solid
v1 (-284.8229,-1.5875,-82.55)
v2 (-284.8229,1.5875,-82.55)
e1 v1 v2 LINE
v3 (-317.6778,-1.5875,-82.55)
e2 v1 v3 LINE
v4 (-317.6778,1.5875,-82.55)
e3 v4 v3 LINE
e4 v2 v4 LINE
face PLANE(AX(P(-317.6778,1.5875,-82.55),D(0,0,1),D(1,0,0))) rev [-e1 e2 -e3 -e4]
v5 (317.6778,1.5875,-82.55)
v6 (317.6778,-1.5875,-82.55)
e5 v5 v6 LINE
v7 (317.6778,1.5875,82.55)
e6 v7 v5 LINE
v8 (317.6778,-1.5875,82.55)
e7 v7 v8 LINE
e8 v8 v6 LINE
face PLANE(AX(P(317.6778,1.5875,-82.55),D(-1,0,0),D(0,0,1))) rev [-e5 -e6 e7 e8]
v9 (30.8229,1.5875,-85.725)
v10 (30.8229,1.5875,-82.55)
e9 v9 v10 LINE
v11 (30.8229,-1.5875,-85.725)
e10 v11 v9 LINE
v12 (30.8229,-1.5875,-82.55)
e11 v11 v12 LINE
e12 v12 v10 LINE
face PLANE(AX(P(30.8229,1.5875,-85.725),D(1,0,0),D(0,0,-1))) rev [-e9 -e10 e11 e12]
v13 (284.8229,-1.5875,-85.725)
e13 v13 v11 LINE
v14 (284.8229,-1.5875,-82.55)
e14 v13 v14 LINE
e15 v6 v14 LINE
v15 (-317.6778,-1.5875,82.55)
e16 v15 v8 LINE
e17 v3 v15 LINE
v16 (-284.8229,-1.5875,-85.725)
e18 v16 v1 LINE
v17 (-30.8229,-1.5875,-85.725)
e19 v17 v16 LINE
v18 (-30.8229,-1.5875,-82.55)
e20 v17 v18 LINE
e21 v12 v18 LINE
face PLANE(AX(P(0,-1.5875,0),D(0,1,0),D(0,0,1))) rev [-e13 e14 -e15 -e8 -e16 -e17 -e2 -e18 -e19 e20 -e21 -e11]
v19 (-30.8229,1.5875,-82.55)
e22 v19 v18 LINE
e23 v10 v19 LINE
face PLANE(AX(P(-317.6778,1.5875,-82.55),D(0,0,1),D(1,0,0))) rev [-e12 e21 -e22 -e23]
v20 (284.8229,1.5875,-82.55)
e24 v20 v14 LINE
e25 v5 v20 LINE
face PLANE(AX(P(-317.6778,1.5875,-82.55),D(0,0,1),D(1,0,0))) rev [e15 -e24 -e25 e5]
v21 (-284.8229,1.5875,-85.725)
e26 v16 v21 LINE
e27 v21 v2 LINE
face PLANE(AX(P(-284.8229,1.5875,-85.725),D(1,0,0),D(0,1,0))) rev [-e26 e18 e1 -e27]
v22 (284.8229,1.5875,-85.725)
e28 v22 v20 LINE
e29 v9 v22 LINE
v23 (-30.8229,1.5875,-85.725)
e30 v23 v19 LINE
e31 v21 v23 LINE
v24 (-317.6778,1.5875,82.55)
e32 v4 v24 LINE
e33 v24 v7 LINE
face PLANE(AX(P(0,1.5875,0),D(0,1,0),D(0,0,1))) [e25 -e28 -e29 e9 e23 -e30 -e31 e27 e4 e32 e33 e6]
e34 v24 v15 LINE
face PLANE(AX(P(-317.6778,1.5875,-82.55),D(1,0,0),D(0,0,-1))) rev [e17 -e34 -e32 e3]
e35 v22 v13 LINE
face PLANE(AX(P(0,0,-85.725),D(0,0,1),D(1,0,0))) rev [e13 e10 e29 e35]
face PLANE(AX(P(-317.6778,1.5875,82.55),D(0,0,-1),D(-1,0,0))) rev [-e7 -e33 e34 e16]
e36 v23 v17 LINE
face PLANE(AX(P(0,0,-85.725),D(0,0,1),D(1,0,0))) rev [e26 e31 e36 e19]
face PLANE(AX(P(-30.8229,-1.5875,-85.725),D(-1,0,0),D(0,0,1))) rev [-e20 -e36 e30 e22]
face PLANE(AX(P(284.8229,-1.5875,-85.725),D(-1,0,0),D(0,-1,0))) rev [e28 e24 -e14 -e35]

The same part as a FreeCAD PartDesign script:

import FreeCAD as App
import Part
import Sketcher
from FreeCAD import Vector
Q = App.Units.Quantity

doc = App.newDocument("Part")
body = doc.addObject("PartDesign::Body", "Body")

sketch1 = body.newObject("Sketcher::SketchObject", "Sketch")
sketch1.AttachmentSupport = (doc.getObject("XZ_Plane"), [""])
sketch1.MapMode = "FlatFace"
sketch1.addGeometry(Part.LineSegment(Vector(-318, -83, 0), Vector(-318, 83, 0)), False)
sketch1.addGeometry(Part.LineSegment(Vector(-318, 83, 0), Vector(318, 83, 0)), False)
sketch1.addGeometry(Part.LineSegment(Vector(318, 83, 0), Vector(318, -83, 0)), False)
sketch1.addGeometry(Part.LineSegment(Vector(318, -83, 0), Vector(-318, -83, 0)), False)
sketch1.addConstraint(Sketcher.Constraint("Coincident", 0, 2, 1, 1))
sketch1.addConstraint(Sketcher.Constraint("Coincident", 1, 2, 2, 1))
sketch1.addConstraint(Sketcher.Constraint("Coincident", 2, 2, 3, 1))
sketch1.addConstraint(Sketcher.Constraint("Coincident", 3, 2, 0, 1))
sketch1.addConstraint(Sketcher.Constraint("Vertical", 0))
sketch1.addConstraint(Sketcher.Constraint("Horizontal", 1))
sketch1.addConstraint(Sketcher.Constraint("Vertical", 2))
sketch1.addConstraint(Sketcher.Constraint("Horizontal", 3))
sketch1.addConstraint(Sketcher.Constraint("Symmetric", 0, 2, 2, 2, -1, 1))
sketch1.addConstraint(Sketcher.Constraint("DistanceY", 0, 1, 0, 2, Q("6.5 in")))
sketch1.addConstraint(Sketcher.Constraint("DistanceX", 1, 1, 1, 2, Q("25.014 in")))
pad1 = body.newObject("PartDesign::Pad", "Pad")
pad1.Profile = sketch1
pad1.Length = Q("0.125 in")
pad1.Midplane = True

sketch2 = body.newObject("Sketcher::SketchObject", "Sketch001")
sketch2.AttachmentSupport = (doc.getObject("XY_Plane"), [""])
sketch2.MapMode = "FlatFace"
sketch2.AttachmentOffset = App.Placement(Vector(0, 0, -3.25 * 25.4), App.Rotation())
sketch2.addGeometry(Part.LineSegment(Vector(284.8, 1.6, 0), Vector(284.8, -1.6, 0)), False)
sketch2.addGeometry(Part.LineSegment(Vector(284.8, -1.6, 0), Vector(30.8, -1.6, 0)), False)
sketch2.addGeometry(Part.LineSegment(Vector(30.8, -1.6, 0), Vector(30.8, 1.6, 0)), False)
sketch2.addGeometry(Part.LineSegment(Vector(30.8, 1.6, 0), Vector(284.8, 1.6, 0)), False)
sketch2.addGeometry(Part.LineSegment(Vector(-30.8, 1.6, 0), Vector(-30.8, -1.6, 0)), False)
sketch2.addGeometry(Part.LineSegment(Vector(-30.8, -1.6, 0), Vector(-284.8, -1.6, 0)), False)
sketch2.addGeometry(Part.LineSegment(Vector(-284.8, -1.6, 0), Vector(-284.8, 1.6, 0)), False)
sketch2.addGeometry(Part.LineSegment(Vector(-284.8, 1.6, 0), Vector(-30.8, 1.6, 0)), False)
sketch2.addConstraint(Sketcher.Constraint("Coincident", 0, 2, 1, 1))
sketch2.addConstraint(Sketcher.Constraint("Coincident", 1, 2, 2, 1))
sketch2.addConstraint(Sketcher.Constraint("Coincident", 2, 2, 3, 1))
sketch2.addConstraint(Sketcher.Constraint("Coincident", 3, 2, 0, 1))
sketch2.addConstraint(Sketcher.Constraint("Coincident", 4, 2, 5, 1))
sketch2.addConstraint(Sketcher.Constraint("Coincident", 5, 2, 6, 1))
sketch2.addConstraint(Sketcher.Constraint("Coincident", 6, 2, 7, 1))
sketch2.addConstraint(Sketcher.Constraint("Coincident", 7, 2, 4, 1))
sketch2.addConstraint(Sketcher.Constraint("Vertical", 0))
sketch2.addConstraint(Sketcher.Constraint("Horizontal", 1))
sketch2.addConstraint(Sketcher.Constraint("Vertical", 2))
sketch2.addConstraint(Sketcher.Constraint("Horizontal", 3))
sketch2.addConstraint(Sketcher.Constraint("Vertical", 4))
sketch2.addConstraint(Sketcher.Constraint("Horizontal", 5))
sketch2.addConstraint(Sketcher.Constraint("Vertical", 6))
sketch2.addConstraint(Sketcher.Constraint("Horizontal", 7))
sketch2.addConstraint(Sketcher.Constraint("Symmetric", 2, 2, 4, 2, -1, 1))
sketch2.addConstraint(Sketcher.Constraint("Symmetric", 0, 2, 6, 2, -1, 1))
sketch2.addConstraint(Sketcher.Constraint("Horizontal", 1, 2, 4, 2))
sketch2.addConstraint(Sketcher.Constraint("DistanceX", 1, 2, 1, 1, Q("10 in")))
sketch2.addConstraint(Sketcher.Constraint("DistanceY", 0, 2, 0, 1, Q("0.125 in")))
sketch2.addConstraint(Sketcher.Constraint("DistanceX", 4, 2, 1, 2, Q("2.427 in")))
pad2 = body.newObject("PartDesign::Pad", "Pad001")
pad2.Profile = sketch2
pad2.Length = Q("0.125 in")
pad2.Reversed = True

doc.recompute()
